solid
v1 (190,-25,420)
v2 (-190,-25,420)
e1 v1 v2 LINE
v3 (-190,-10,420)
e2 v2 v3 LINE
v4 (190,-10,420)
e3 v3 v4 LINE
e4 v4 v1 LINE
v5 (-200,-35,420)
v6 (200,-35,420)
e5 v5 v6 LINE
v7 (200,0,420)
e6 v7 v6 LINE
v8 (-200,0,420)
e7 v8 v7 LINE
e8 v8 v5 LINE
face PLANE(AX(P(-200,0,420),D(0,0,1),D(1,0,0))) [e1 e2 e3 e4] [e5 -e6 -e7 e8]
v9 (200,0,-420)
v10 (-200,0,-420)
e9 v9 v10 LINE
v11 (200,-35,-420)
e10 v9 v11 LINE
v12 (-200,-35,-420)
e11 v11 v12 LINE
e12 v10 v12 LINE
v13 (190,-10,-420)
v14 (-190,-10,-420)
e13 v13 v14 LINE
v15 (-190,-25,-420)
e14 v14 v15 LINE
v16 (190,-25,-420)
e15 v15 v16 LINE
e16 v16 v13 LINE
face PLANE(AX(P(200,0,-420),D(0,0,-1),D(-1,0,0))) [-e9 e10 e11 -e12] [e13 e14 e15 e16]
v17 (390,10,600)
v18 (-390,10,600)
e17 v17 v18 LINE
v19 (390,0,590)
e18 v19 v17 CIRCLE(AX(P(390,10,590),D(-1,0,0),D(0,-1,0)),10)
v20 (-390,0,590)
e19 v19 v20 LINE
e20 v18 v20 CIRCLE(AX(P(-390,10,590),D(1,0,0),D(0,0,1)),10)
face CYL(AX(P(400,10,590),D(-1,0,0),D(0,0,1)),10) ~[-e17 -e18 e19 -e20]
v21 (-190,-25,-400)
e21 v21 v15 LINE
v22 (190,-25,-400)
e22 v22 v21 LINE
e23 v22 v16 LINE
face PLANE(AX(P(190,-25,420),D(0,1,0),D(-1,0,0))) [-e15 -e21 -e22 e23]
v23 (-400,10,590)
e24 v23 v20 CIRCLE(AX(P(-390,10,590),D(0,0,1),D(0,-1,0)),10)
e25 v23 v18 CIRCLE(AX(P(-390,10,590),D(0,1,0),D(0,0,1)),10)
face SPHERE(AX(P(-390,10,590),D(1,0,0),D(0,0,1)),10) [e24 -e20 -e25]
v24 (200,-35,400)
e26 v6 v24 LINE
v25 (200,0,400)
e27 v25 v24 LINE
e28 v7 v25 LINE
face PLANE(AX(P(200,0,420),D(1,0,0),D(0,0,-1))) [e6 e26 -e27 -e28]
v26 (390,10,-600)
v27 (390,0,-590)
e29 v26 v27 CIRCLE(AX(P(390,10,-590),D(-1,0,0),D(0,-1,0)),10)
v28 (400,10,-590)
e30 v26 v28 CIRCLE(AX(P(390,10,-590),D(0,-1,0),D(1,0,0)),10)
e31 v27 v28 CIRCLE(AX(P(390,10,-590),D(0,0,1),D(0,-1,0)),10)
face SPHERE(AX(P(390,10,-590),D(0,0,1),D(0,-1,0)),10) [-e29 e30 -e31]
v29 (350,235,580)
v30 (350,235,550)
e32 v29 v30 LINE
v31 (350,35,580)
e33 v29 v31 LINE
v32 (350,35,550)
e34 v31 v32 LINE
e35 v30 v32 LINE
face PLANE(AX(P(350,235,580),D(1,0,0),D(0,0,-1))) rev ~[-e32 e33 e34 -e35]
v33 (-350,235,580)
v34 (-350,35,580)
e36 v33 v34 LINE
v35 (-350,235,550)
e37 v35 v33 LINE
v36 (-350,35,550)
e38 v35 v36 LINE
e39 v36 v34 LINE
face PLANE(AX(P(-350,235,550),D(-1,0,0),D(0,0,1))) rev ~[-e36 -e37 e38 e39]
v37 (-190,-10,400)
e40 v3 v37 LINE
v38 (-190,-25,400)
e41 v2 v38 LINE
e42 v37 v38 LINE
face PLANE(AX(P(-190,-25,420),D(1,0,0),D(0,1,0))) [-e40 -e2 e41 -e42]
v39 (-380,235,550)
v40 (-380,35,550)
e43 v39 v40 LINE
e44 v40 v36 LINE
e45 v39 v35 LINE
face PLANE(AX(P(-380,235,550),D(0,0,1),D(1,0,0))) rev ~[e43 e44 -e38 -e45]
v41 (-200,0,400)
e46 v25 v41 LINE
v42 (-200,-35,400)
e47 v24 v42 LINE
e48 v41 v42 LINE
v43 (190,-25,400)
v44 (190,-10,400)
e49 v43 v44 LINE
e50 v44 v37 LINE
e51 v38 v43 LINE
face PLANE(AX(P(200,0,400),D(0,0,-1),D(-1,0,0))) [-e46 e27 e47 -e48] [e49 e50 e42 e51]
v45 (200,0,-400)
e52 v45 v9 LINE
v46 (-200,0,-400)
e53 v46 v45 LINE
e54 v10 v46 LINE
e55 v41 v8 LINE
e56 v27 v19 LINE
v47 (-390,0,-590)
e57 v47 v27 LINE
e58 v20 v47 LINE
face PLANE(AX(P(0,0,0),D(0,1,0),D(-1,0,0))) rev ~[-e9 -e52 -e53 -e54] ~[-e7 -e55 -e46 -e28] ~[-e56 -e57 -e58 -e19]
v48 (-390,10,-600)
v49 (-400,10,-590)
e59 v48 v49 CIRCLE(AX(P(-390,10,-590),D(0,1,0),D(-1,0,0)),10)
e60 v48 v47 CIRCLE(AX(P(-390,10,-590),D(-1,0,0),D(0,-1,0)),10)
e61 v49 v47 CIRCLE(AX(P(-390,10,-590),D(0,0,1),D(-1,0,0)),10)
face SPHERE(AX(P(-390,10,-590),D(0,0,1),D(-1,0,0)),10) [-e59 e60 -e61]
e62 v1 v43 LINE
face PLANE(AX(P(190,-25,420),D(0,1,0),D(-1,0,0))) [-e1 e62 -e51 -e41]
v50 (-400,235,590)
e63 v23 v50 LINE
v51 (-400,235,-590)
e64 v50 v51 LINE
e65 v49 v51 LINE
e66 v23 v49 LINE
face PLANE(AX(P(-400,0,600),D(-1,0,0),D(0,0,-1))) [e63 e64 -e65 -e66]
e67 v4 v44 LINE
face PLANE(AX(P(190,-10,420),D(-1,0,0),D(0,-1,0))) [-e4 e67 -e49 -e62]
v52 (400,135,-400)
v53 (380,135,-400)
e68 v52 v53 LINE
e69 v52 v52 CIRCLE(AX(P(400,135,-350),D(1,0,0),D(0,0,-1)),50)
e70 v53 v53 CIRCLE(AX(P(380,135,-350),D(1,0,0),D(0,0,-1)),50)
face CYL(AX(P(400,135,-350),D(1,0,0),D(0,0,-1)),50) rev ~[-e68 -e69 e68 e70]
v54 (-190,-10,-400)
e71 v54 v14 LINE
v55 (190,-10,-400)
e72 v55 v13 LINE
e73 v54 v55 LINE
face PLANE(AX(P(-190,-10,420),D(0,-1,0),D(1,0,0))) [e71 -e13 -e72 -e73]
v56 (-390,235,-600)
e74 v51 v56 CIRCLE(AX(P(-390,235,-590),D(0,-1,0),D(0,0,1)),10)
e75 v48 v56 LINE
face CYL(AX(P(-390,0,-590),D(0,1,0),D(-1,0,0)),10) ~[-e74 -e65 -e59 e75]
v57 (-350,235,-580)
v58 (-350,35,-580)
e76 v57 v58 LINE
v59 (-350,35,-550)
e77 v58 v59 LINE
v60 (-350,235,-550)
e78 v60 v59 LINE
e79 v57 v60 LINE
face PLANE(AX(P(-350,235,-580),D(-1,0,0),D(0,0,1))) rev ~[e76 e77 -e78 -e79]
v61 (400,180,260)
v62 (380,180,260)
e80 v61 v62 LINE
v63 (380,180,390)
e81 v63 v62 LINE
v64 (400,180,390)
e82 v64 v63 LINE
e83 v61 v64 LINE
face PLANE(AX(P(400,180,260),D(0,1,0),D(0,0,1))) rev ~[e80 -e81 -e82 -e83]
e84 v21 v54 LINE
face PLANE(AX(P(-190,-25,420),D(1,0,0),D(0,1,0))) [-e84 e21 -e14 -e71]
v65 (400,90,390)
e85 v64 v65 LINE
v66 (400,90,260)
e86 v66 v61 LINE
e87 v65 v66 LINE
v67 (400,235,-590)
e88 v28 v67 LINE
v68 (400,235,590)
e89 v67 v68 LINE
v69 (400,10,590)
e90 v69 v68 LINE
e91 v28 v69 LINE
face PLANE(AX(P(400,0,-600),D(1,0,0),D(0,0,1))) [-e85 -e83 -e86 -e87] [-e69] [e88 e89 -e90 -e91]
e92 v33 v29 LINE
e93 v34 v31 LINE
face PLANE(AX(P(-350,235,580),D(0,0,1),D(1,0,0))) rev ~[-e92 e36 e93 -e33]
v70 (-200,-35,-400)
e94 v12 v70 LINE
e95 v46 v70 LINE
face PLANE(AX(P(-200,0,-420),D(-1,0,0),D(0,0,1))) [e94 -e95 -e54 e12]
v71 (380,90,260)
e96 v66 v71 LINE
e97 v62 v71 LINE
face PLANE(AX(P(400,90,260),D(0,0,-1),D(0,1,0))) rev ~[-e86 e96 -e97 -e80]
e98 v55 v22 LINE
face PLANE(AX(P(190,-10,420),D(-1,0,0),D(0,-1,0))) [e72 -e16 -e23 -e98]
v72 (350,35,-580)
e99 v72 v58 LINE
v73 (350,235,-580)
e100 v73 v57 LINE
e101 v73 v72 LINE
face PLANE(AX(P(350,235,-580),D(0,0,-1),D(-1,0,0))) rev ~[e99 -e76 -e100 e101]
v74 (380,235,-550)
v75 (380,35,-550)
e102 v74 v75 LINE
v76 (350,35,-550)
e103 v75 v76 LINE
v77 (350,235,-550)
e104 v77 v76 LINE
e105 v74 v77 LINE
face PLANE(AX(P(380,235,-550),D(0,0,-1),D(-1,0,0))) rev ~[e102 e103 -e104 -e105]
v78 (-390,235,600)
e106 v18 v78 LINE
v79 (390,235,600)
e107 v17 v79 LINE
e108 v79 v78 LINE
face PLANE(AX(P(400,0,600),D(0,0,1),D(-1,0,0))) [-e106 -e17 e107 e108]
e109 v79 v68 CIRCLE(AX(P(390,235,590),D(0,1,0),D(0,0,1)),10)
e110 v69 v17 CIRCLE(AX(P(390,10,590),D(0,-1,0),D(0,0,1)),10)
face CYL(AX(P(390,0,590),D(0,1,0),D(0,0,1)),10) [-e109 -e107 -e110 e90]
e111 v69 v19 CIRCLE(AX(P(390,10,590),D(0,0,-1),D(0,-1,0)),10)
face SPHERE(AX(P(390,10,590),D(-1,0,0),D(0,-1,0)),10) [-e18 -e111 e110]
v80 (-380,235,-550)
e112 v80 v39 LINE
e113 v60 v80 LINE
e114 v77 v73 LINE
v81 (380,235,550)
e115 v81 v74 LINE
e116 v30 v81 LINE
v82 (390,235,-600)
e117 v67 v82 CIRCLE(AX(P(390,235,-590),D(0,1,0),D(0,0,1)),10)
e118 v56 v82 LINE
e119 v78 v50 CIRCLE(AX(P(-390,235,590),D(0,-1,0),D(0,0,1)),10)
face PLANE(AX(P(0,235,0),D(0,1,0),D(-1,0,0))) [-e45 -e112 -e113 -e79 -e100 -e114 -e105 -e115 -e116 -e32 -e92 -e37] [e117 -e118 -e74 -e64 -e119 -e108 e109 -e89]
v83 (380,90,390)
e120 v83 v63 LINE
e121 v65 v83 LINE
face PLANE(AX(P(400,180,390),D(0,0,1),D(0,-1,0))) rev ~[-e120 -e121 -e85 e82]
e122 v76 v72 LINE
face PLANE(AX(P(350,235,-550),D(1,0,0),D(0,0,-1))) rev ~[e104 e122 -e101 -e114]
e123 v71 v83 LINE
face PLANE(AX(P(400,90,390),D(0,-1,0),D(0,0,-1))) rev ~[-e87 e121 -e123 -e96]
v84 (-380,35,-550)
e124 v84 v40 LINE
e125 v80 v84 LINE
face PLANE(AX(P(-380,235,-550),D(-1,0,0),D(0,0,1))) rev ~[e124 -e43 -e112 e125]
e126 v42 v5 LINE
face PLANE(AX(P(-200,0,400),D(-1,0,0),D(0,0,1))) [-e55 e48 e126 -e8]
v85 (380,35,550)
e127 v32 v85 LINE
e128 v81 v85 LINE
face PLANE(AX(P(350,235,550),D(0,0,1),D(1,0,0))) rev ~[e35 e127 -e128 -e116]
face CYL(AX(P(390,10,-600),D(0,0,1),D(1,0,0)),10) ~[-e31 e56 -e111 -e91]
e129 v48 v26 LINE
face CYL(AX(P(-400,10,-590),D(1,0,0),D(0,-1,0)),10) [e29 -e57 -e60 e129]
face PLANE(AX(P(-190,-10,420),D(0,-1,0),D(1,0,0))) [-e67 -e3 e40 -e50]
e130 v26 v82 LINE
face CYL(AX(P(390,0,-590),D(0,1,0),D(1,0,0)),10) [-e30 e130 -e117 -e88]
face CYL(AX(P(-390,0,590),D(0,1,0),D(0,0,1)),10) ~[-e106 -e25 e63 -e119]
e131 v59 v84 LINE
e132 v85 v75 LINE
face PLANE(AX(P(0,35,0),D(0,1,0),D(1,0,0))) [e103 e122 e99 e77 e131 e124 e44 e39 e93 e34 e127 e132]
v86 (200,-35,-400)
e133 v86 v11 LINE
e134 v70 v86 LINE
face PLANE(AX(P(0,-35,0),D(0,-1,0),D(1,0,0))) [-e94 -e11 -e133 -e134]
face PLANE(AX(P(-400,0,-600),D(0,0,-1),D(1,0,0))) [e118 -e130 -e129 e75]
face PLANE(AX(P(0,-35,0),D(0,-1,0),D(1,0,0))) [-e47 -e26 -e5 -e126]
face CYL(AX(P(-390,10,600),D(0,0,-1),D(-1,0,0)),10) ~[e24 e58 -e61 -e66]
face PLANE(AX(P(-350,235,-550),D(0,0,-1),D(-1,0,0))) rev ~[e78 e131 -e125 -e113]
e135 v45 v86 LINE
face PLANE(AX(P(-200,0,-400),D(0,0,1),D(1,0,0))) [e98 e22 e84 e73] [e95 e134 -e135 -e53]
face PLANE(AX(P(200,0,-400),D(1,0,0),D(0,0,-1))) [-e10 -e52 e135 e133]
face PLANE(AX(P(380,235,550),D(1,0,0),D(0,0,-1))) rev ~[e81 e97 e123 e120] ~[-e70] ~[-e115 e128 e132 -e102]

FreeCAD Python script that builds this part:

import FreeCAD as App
import Part
import Sketcher
from FreeCAD import Vector
Q = App.Units.Quantity


def edges_at(feature, points):
    """Names of the edges that pass closest to the given points."""
    edges = feature.Shape.Edges
    near = lambda p: min(range(len(edges)), key=lambda i: edges[i].distToShape(Part.Vertex(*p))[0])
    return sorted({f"Edge{near(p) + 1}" for p in points})

doc = App.newDocument("Part")
params = doc.addObject("Spreadsheet::Sheet", "Params")
for row, (alias, value) in enumerate([
    ("sketch1_width", "800 mm"),
    ("sketch1_height", "1200 mm"),
    ("pad1_length", "235 mm"),
    ("sketch2_width", "400 mm"),
    ("sketch2_height", "20 mm"),
    ("pad2_length", "35 mm"),
    ("sketch3_width", "380 mm"),
    ("sketch3_height", "15 mm"),
    ("pocket1_length", "1000 mm"),
    ("fillet_radius", "10 mm"),
    ("sketch4_diameter", "100 mm"),
    ("sketch4_width", "90 mm"),
    ("sketch4_height", "130 mm"),
    ("pocket2_length", "50 mm"),
    ("sketch5_width", "30 mm"),
    ("sketch5_width2", "700 mm"),
    ("sketch5_height", "1100 mm"),
    ("pocket3_length", "200 mm"),
], start=1):
    params.set(f"A{row}", alias)
    params.set(f"B{row}", "=" + value)
    params.setAlias(f"B{row}", alias)

body = doc.addObject("PartDesign::Body", "Body")

sketch1 = doc.addObject("Sketcher::SketchObject", "Sketch")
body.addObject(sketch1)
sketch1.AttachmentSupport = (doc.XZ_Plane, [""])
sketch1.MapMode = "FlatFace"
sketch1.addGeometry(Part.LineSegment(Vector(-400, 600, 0), Vector(400, 600, 0)), False)
sketch1.addGeometry(Part.LineSegment(Vector(400, 600, 0), Vector(400, -600, 0)), False)
sketch1.addGeometry(Part.LineSegment(Vector(400, -600, 0), Vector(-400, -600, 0)), False)
sketch1.addGeometry(Part.LineSegment(Vector(-400, -600, 0), Vector(-400, 600, 0)), False)
sketch1.addConstraint(Sketcher.Constraint("Coincident", 0, 2, 1, 1))
sketch1.addConstraint(Sketcher.Constraint("Coincident", 1, 2, 2, 1))
sketch1.addConstraint(Sketcher.Constraint("Coincident", 2, 2, 3, 1))
sketch1.addConstraint(Sketcher.Constraint("Coincident", 3, 2, 0, 1))
sketch1.addConstraint(Sketcher.Constraint("Horizontal", 0))
sketch1.addConstraint(Sketcher.Constraint("Vertical", 1))
sketch1.addConstraint(Sketcher.Constraint("Horizontal", 2))
sketch1.addConstraint(Sketcher.Constraint("Vertical", 3))
sketch1.addConstraint(Sketcher.Constraint("Symmetric", 0, 2, 2, 2, -1, 1))
sketch1.addConstraint(Sketcher.Constraint("DistanceX", 0, 1, 0, 2, Q("800 mm")))
sketch1.addConstraint(Sketcher.Constraint("DistanceY", 1, 2, 1, 1, Q("1200 mm")))
sketch1.setExpression("Constraints[9]", "Params.sketch1_width")
sketch1.setExpression("Constraints[10]", "Params.sketch1_height")
pad1 = doc.addObject("PartDesign::Pad", "Pad")
body.addObject(pad1)
pad1.Profile = sketch1
pad1.setExpression("Length", "Params.pad1_length")
pad1.Reversed = True

sketch2 = doc.addObject("Sketcher::SketchObject", "Sketch001")
body.addObject(sketch2)
sketch2.AttachmentSupport = (doc.XZ_Plane, [""])
sketch2.MapMode = "FlatFace"
sketch2.addGeometry(Part.LineSegment(Vector(-200, 400, 0), Vector(200, 400, 0)), False)
sketch2.addGeometry(Part.LineSegment(Vector(200, 400, 0), Vector(200, 420, 0)), False)
sketch2.addGeometry(Part.LineSegment(Vector(200, 420, 0), Vector(-200, 420, 0)), False)
sketch2.addGeometry(Part.LineSegment(Vector(-200, 420, 0), Vector(-200, 400, 0)), False)
sketch2.addGeometry(Part.LineSegment(Vector(-200, -420, 0), Vector(200, -420, 0)), False)
sketch2.addGeometry(Part.LineSegment(Vector(200, -420, 0), Vector(200, -400, 0)), False)
sketch2.addGeometry(Part.LineSegment(Vector(200, -400, 0), Vector(-200, -400, 0)), False)
sketch2.addGeometry(Part.LineSegment(Vector(-200, -400, 0), Vector(-200, -420, 0)), False)
sketch2.addConstraint(Sketcher.Constraint("Coincident", 0, 2, 1, 1))
sketch2.addConstraint(Sketcher.Constraint("Coincident", 1, 2, 2, 1))
sketch2.addConstraint(Sketcher.Constraint("Coincident", 2, 2, 3, 1))
sketch2.addConstraint(Sketcher.Constraint("Coincident", 3, 2, 0, 1))
sketch2.addConstraint(Sketcher.Constraint("Coincident", 4, 2, 5, 1))
sketch2.addConstraint(Sketcher.Constraint("Coincident", 5, 2, 6, 1))
sketch2.addConstraint(Sketcher.Constraint("Coincident", 6, 2, 7, 1))
sketch2.addConstraint(Sketcher.Constraint("Coincident", 7, 2, 4, 1))
sketch2.addConstraint(Sketcher.Constraint("Horizontal", 0))
sketch2.addConstraint(Sketcher.Constraint("Vertical", 1))
sketch2.addConstraint(Sketcher.Constraint("Horizontal", 2))
sketch2.addConstraint(Sketcher.Constraint("Vertical", 3))
sketch2.addConstraint(Sketcher.Constraint("Horizontal", 4))
sketch2.addConstraint(Sketcher.Constraint("Vertical", 5))
sketch2.addConstraint(Sketcher.Constraint("Horizontal", 6))
sketch2.addConstraint(Sketcher.Constraint("Vertical", 7))
sketch2.addConstraint(Sketcher.Constraint("Symmetric", 2, 2, 4, 2, -1, 1))
sketch2.addConstraint(Sketcher.Constraint("Symmetric", 0, 2, 6, 2, -1, 1))
sketch2.addConstraint(Sketcher.Constraint("Vertical", 1, 2, 4, 2))
sketch2.addConstraint(Sketcher.Constraint("DistanceX", 0, 1, 0, 2, Q("400 mm")))
sketch2.addConstraint(Sketcher.Constraint("DistanceY", 1, 1, 1, 2, Q("20 mm")))
sketch2.addConstraint(Sketcher.Constraint("DistanceY", -1, 1, 0, 2, Q("400 mm")))
sketch2.setExpression("Constraints[19]", "Params.sketch2_width")
sketch2.setExpression("Constraints[20]", "Params.sketch2_height")
pad2 = doc.addObject("PartDesign::Pad", "Pad001")
body.addObject(pad2)
pad2.Profile = sketch2
pad2.setExpression("Length", "Params.pad2_length")

sketch3 = doc.addObject("Sketcher::SketchObject", "Sketch002")
body.addObject(sketch3)
sketch3.AttachmentSupport = (doc.XY_Plane, [""])
sketch3.MapMode = "FlatFace"
sketch3.AttachmentOffset = App.Placement(Vector(0, 0, 420), App.Rotation())
sketch3.addGeometry(Part.LineSegment(Vector(190, -10, 0), Vector(-190, -10, 0)), False)
sketch3.addGeometry(Part.LineSegment(Vector(-190, -10, 0), Vector(-190, -25, 0)), False)
sketch3.addGeometry(Part.LineSegment(Vector(-190, -25, 0), Vector(190, -25, 0)), False)
sketch3.addGeometry(Part.LineSegment(Vector(190, -25, 0), Vector(190, -10, 0)), False)
sketch3.addConstraint(Sketcher.Constraint("Coincident", 0, 2, 1, 1))
sketch3.addConstraint(Sketcher.Constraint("Coincident", 1, 2, 2, 1))
sketch3.addConstraint(Sketcher.Constraint("Coincident", 2, 2, 3, 1))
sketch3.addConstraint(Sketcher.Constraint("Coincident", 3, 2, 0, 1))
sketch3.addConstraint(Sketcher.Constraint("Horizontal", 0))
sketch3.addConstraint(Sketcher.Constraint("Vertical", 1))
sketch3.addConstraint(Sketcher.Constraint("Horizontal", 2))
sketch3.addConstraint(Sketcher.Constraint("Vertical", 3))
sketch3.addConstraint(Sketcher.Constraint("DistanceX", 0, 2, 0, 1, Q("380 mm")))
sketch3.addConstraint(Sketcher.Constraint("DistanceY", 1, 2, 1, 1, Q("15 mm")))
sketch3.addConstraint(Sketcher.Constraint("DistanceY", 0, 2, -1, 1, Q("10 mm")))
sketch3.addConstraint(Sketcher.Constraint("DistanceX", 0, 2, -1, 1, Q("190 mm")))
sketch3.setExpression("Constraints[8]", "Params.sketch3_width")
sketch3.setExpression("Constraints[9]", "Params.sketch3_height")
pocket1 = doc.addObject("PartDesign::Pocket", "Pocket")
body.addObject(pocket1)
pocket1.Profile = sketch3
pocket1.setExpression("Length", "Params.pocket1_length")
doc.recompute()

fillet = doc.addObject("PartDesign::Fillet", "Fillet")
body.addObject(fillet)
fillet.Base = (pocket1, edges_at(pocket1, [
    (0, 0, 600),
    (400, 0, 0),
    (400, 117.5, 600),
    (-400, 117.5, 600),
    (-400, 0, 0),
    (-400, 117.5, -600),
    (0, 0, -600),
    (400, 117.5, -600),
]))
fillet.setExpression("Radius", "Params.fillet_radius")

sketch4 = doc.addObject("Sketcher::SketchObject", "Sketch003")
body.addObject(sketch4)
sketch4.AttachmentSupport = (doc.YZ_Plane, [""])
sketch4.MapMode = "FlatFace"
sketch4.AttachmentOffset = App.Placement(Vector(0, 0, 400), App.Rotation())
sketch4.addGeometry(Part.Circle(Vector(135, -350, 0), Vector(0, 0, 1), 50), False)
sketch4.addGeometry(Part.LineSegment(Vector(180, 390, 0), Vector(90, 390, 0)), False)
sketch4.addGeometry(Part.LineSegment(Vector(90, 390, 0), Vector(90, 260, 0)), False)
sketch4.addGeometry(Part.LineSegment(Vector(90, 260, 0), Vector(180, 260, 0)), False)
sketch4.addGeometry(Part.LineSegment(Vector(180, 260, 0), Vector(180, 390, 0)), False)
sketch4.addConstraint(Sketcher.Constraint("Coincident", 1, 2, 2, 1))
sketch4.addConstraint(Sketcher.Constraint("Coincident", 2, 2, 3, 1))
sketch4.addConstraint(Sketcher.Constraint("Coincident", 3, 2, 4, 1))
sketch4.addConstraint(Sketcher.Constraint("Coincident", 4, 2, 1, 1))
sketch4.addConstraint(Sketcher.Constraint("Horizontal", 1))
sketch4.addConstraint(Sketcher.Constraint("Vertical", 2))
sketch4.addConstraint(Sketcher.Constraint("Horizontal", 3))
sketch4.addConstraint(Sketcher.Constraint("Vertical", 4))
sketch4.addConstraint(Sketcher.Constraint("Diameter", 0, Q("100 mm")))
sketch4.addConstraint(Sketcher.Constraint("DistanceX", 1, 2, 1, 1, Q("90 mm")))
sketch4.addConstraint(Sketcher.Constraint("DistanceY", 2, 2, 2, 1, Q("130 mm")))
sketch4.addConstraint(Sketcher.Constraint("DistanceX", -1, 1, 1, 2, Q("90 mm")))
sketch4.addConstraint(Sketcher.Constraint("DistanceX", -1, 1, 0, 3, Q("135 mm")))
sketch4.addConstraint(Sketcher.Constraint("DistanceY", 0, 3, -1, 1, Q("350 mm")))
sketch4.addConstraint(Sketcher.Constraint("DistanceY", -1, 1, 1, 2, Q("390 mm")))
sketch4.setExpression("Constraints[8]", "Params.sketch4_diameter")
sketch4.setExpression("Constraints[9]", "Params.sketch4_width")
sketch4.setExpression("Constraints[10]", "Params.sketch4_height")
pocket2 = doc.addObject("PartDesign::Pocket", "Pocket001")
body.addObject(pocket2)
pocket2.Profile = sketch4
pocket2.setExpression("Length", "Params.pocket2_length")

sketch5 = doc.addObject("Sketcher::SketchObject", "Sketch004")
body.addObject(sketch5)
sketch5.AttachmentSupport = (doc.XZ_Plane, [""])
sketch5.MapMode = "FlatFace"
sketch5.AttachmentOffset = App.Placement(Vector(0, 0, -235), App.Rotation())
sketch5.addGeometry(Part.LineSegment(Vector(-380, -550, 0), Vector(-380, 550, 0)), False)
sketch5.addGeometry(Part.LineSegment(Vector(-380, 550, 0), Vector(-350, 550, 0)), False)
sketch5.addGeometry(Part.LineSegment(Vector(-350, 550, 0), Vector(-350, 580, 0)), False)
sketch5.addGeometry(Part.LineSegment(Vector(-350, 580, 0), Vector(350, 580, 0)), False)
sketch5.addGeometry(Part.LineSegment(Vector(350, 580, 0), Vector(350, 550, 0)), False)
sketch5.addGeometry(Part.LineSegment(Vector(350, 550, 0), Vector(380, 550, 0)), False)
sketch5.addGeometry(Part.LineSegment(Vector(380, 550, 0), Vector(380, -550, 0)), False)
sketch5.addGeometry(Part.LineSegment(Vector(380, -550, 0), Vector(350, -550, 0)), False)
sketch5.addGeometry(Part.LineSegment(Vector(350, -550, 0), Vector(350, -580, 0)), False)
sketch5.addGeometry(Part.LineSegment(Vector(350, -580, 0), Vector(-350, -580, 0)), False)
sketch5.addGeometry(Part.LineSegment(Vector(-350, -580, 0), Vector(-350, -550, 0)), False)
sketch5.addGeometry(Part.LineSegment(Vector(-350, -550, 0), Vector(-380, -550, 0)), False)
sketch5.addConstraint(Sketcher.Constraint("Coincident", 0, 2, 1, 1))
sketch5.addConstraint(Sketcher.Constraint("Coincident", 1, 2, 2, 1))
sketch5.addConstraint(Sketcher.Constraint("Coincident", 2, 2, 3, 1))
sketch5.addConstraint(Sketcher.Constraint("Coincident", 3, 2, 4, 1))
sketch5.addConstraint(Sketcher.Constraint("Coincident", 4, 2, 5, 1))
sketch5.addConstraint(Sketcher.Constraint("Coincident", 5, 2, 6, 1))
sketch5.addConstraint(Sketcher.Constraint("Coincident", 6, 2, 7, 1))
sketch5.addConstraint(Sketcher.Constraint("Coincident", 7, 2, 8, 1))
sketch5.addConstraint(Sketcher.Constraint("Coincident", 8, 2, 9, 1))
sketch5.addConstraint(Sketcher.Constraint("Coincident", 9, 2, 10, 1))
sketch5.addConstraint(Sketcher.Constraint("Coincident", 10, 2, 11, 1))
sketch5.addConstraint(Sketcher.Constraint("Coincident", 11, 2, 0, 1))
sketch5.addConstraint(Sketcher.Constraint("Vertical", 0))
sketch5.addConstraint(Sketcher.Constraint("Horizontal", 1))
sketch5.addConstraint(Sketcher.Constraint("Vertical", 2))
sketch5.addConstraint(Sketcher.Constraint("Horizontal", 3))
sketch5.addConstraint(Sketcher.Constraint("Vertical", 4))
sketch5.addConstraint(Sketcher.Constraint("Horizontal", 5))
sketch5.addConstraint(Sketcher.Constraint("Vertical", 6))
sketch5.addConstraint(Sketcher.Constraint("Horizontal", 7))
sketch5.addConstraint(Sketcher.Constraint("Vertical", 8))
sketch5.addConstraint(Sketcher.Constraint("Horizontal", 9))
sketch5.addConstraint(Sketcher.Constraint("Vertical", 10))
sketch5.addConstraint(Sketcher.Constraint("Horizontal", 11))
sketch5.addConstraint(Sketcher.Constraint("Symmetric", 0, 2, 6, 2, -1, 1))
sketch5.addConstraint(Sketcher.Constraint("Symmetric", 2, 2, 8, 2, -1, 1))
sketch5.addConstraint(Sketcher.Constraint("Symmetric", 4, 2, 10, 2, -1, 1))
sketch5.addConstraint(Sketcher.Constraint("Symmetric", 1, 2, 4, 2, -2))
sketch5.addConstraint(Sketcher.Constraint("Equal", 11, 2))
sketch5.addConstraint(Sketcher.Constraint("DistanceX", 1, 1, 1, 2, Q("30 mm")))
sketch5.addConstraint(Sketcher.Constraint("DistanceX", 3, 1, 3, 2, Q("700 mm")))
sketch5.addConstraint(Sketcher.Constraint("DistanceY", 0, 1, 0, 2, Q("1100 mm")))
sketch5.setExpression("Constraints[29]", "Params.sketch5_width")
sketch5.setExpression("Constraints[30]", "Params.sketch5_width2")
sketch5.setExpression("Constraints[31]", "Params.sketch5_height")
pocket3 = doc.addObject("PartDesign::Pocket", "Pocket002")
body.addObject(pocket3)
pocket3.Profile = sketch5
pocket3.setExpression("Length", "Params.pocket3_length")
pocket3.Reversed = True

doc.recompute()
